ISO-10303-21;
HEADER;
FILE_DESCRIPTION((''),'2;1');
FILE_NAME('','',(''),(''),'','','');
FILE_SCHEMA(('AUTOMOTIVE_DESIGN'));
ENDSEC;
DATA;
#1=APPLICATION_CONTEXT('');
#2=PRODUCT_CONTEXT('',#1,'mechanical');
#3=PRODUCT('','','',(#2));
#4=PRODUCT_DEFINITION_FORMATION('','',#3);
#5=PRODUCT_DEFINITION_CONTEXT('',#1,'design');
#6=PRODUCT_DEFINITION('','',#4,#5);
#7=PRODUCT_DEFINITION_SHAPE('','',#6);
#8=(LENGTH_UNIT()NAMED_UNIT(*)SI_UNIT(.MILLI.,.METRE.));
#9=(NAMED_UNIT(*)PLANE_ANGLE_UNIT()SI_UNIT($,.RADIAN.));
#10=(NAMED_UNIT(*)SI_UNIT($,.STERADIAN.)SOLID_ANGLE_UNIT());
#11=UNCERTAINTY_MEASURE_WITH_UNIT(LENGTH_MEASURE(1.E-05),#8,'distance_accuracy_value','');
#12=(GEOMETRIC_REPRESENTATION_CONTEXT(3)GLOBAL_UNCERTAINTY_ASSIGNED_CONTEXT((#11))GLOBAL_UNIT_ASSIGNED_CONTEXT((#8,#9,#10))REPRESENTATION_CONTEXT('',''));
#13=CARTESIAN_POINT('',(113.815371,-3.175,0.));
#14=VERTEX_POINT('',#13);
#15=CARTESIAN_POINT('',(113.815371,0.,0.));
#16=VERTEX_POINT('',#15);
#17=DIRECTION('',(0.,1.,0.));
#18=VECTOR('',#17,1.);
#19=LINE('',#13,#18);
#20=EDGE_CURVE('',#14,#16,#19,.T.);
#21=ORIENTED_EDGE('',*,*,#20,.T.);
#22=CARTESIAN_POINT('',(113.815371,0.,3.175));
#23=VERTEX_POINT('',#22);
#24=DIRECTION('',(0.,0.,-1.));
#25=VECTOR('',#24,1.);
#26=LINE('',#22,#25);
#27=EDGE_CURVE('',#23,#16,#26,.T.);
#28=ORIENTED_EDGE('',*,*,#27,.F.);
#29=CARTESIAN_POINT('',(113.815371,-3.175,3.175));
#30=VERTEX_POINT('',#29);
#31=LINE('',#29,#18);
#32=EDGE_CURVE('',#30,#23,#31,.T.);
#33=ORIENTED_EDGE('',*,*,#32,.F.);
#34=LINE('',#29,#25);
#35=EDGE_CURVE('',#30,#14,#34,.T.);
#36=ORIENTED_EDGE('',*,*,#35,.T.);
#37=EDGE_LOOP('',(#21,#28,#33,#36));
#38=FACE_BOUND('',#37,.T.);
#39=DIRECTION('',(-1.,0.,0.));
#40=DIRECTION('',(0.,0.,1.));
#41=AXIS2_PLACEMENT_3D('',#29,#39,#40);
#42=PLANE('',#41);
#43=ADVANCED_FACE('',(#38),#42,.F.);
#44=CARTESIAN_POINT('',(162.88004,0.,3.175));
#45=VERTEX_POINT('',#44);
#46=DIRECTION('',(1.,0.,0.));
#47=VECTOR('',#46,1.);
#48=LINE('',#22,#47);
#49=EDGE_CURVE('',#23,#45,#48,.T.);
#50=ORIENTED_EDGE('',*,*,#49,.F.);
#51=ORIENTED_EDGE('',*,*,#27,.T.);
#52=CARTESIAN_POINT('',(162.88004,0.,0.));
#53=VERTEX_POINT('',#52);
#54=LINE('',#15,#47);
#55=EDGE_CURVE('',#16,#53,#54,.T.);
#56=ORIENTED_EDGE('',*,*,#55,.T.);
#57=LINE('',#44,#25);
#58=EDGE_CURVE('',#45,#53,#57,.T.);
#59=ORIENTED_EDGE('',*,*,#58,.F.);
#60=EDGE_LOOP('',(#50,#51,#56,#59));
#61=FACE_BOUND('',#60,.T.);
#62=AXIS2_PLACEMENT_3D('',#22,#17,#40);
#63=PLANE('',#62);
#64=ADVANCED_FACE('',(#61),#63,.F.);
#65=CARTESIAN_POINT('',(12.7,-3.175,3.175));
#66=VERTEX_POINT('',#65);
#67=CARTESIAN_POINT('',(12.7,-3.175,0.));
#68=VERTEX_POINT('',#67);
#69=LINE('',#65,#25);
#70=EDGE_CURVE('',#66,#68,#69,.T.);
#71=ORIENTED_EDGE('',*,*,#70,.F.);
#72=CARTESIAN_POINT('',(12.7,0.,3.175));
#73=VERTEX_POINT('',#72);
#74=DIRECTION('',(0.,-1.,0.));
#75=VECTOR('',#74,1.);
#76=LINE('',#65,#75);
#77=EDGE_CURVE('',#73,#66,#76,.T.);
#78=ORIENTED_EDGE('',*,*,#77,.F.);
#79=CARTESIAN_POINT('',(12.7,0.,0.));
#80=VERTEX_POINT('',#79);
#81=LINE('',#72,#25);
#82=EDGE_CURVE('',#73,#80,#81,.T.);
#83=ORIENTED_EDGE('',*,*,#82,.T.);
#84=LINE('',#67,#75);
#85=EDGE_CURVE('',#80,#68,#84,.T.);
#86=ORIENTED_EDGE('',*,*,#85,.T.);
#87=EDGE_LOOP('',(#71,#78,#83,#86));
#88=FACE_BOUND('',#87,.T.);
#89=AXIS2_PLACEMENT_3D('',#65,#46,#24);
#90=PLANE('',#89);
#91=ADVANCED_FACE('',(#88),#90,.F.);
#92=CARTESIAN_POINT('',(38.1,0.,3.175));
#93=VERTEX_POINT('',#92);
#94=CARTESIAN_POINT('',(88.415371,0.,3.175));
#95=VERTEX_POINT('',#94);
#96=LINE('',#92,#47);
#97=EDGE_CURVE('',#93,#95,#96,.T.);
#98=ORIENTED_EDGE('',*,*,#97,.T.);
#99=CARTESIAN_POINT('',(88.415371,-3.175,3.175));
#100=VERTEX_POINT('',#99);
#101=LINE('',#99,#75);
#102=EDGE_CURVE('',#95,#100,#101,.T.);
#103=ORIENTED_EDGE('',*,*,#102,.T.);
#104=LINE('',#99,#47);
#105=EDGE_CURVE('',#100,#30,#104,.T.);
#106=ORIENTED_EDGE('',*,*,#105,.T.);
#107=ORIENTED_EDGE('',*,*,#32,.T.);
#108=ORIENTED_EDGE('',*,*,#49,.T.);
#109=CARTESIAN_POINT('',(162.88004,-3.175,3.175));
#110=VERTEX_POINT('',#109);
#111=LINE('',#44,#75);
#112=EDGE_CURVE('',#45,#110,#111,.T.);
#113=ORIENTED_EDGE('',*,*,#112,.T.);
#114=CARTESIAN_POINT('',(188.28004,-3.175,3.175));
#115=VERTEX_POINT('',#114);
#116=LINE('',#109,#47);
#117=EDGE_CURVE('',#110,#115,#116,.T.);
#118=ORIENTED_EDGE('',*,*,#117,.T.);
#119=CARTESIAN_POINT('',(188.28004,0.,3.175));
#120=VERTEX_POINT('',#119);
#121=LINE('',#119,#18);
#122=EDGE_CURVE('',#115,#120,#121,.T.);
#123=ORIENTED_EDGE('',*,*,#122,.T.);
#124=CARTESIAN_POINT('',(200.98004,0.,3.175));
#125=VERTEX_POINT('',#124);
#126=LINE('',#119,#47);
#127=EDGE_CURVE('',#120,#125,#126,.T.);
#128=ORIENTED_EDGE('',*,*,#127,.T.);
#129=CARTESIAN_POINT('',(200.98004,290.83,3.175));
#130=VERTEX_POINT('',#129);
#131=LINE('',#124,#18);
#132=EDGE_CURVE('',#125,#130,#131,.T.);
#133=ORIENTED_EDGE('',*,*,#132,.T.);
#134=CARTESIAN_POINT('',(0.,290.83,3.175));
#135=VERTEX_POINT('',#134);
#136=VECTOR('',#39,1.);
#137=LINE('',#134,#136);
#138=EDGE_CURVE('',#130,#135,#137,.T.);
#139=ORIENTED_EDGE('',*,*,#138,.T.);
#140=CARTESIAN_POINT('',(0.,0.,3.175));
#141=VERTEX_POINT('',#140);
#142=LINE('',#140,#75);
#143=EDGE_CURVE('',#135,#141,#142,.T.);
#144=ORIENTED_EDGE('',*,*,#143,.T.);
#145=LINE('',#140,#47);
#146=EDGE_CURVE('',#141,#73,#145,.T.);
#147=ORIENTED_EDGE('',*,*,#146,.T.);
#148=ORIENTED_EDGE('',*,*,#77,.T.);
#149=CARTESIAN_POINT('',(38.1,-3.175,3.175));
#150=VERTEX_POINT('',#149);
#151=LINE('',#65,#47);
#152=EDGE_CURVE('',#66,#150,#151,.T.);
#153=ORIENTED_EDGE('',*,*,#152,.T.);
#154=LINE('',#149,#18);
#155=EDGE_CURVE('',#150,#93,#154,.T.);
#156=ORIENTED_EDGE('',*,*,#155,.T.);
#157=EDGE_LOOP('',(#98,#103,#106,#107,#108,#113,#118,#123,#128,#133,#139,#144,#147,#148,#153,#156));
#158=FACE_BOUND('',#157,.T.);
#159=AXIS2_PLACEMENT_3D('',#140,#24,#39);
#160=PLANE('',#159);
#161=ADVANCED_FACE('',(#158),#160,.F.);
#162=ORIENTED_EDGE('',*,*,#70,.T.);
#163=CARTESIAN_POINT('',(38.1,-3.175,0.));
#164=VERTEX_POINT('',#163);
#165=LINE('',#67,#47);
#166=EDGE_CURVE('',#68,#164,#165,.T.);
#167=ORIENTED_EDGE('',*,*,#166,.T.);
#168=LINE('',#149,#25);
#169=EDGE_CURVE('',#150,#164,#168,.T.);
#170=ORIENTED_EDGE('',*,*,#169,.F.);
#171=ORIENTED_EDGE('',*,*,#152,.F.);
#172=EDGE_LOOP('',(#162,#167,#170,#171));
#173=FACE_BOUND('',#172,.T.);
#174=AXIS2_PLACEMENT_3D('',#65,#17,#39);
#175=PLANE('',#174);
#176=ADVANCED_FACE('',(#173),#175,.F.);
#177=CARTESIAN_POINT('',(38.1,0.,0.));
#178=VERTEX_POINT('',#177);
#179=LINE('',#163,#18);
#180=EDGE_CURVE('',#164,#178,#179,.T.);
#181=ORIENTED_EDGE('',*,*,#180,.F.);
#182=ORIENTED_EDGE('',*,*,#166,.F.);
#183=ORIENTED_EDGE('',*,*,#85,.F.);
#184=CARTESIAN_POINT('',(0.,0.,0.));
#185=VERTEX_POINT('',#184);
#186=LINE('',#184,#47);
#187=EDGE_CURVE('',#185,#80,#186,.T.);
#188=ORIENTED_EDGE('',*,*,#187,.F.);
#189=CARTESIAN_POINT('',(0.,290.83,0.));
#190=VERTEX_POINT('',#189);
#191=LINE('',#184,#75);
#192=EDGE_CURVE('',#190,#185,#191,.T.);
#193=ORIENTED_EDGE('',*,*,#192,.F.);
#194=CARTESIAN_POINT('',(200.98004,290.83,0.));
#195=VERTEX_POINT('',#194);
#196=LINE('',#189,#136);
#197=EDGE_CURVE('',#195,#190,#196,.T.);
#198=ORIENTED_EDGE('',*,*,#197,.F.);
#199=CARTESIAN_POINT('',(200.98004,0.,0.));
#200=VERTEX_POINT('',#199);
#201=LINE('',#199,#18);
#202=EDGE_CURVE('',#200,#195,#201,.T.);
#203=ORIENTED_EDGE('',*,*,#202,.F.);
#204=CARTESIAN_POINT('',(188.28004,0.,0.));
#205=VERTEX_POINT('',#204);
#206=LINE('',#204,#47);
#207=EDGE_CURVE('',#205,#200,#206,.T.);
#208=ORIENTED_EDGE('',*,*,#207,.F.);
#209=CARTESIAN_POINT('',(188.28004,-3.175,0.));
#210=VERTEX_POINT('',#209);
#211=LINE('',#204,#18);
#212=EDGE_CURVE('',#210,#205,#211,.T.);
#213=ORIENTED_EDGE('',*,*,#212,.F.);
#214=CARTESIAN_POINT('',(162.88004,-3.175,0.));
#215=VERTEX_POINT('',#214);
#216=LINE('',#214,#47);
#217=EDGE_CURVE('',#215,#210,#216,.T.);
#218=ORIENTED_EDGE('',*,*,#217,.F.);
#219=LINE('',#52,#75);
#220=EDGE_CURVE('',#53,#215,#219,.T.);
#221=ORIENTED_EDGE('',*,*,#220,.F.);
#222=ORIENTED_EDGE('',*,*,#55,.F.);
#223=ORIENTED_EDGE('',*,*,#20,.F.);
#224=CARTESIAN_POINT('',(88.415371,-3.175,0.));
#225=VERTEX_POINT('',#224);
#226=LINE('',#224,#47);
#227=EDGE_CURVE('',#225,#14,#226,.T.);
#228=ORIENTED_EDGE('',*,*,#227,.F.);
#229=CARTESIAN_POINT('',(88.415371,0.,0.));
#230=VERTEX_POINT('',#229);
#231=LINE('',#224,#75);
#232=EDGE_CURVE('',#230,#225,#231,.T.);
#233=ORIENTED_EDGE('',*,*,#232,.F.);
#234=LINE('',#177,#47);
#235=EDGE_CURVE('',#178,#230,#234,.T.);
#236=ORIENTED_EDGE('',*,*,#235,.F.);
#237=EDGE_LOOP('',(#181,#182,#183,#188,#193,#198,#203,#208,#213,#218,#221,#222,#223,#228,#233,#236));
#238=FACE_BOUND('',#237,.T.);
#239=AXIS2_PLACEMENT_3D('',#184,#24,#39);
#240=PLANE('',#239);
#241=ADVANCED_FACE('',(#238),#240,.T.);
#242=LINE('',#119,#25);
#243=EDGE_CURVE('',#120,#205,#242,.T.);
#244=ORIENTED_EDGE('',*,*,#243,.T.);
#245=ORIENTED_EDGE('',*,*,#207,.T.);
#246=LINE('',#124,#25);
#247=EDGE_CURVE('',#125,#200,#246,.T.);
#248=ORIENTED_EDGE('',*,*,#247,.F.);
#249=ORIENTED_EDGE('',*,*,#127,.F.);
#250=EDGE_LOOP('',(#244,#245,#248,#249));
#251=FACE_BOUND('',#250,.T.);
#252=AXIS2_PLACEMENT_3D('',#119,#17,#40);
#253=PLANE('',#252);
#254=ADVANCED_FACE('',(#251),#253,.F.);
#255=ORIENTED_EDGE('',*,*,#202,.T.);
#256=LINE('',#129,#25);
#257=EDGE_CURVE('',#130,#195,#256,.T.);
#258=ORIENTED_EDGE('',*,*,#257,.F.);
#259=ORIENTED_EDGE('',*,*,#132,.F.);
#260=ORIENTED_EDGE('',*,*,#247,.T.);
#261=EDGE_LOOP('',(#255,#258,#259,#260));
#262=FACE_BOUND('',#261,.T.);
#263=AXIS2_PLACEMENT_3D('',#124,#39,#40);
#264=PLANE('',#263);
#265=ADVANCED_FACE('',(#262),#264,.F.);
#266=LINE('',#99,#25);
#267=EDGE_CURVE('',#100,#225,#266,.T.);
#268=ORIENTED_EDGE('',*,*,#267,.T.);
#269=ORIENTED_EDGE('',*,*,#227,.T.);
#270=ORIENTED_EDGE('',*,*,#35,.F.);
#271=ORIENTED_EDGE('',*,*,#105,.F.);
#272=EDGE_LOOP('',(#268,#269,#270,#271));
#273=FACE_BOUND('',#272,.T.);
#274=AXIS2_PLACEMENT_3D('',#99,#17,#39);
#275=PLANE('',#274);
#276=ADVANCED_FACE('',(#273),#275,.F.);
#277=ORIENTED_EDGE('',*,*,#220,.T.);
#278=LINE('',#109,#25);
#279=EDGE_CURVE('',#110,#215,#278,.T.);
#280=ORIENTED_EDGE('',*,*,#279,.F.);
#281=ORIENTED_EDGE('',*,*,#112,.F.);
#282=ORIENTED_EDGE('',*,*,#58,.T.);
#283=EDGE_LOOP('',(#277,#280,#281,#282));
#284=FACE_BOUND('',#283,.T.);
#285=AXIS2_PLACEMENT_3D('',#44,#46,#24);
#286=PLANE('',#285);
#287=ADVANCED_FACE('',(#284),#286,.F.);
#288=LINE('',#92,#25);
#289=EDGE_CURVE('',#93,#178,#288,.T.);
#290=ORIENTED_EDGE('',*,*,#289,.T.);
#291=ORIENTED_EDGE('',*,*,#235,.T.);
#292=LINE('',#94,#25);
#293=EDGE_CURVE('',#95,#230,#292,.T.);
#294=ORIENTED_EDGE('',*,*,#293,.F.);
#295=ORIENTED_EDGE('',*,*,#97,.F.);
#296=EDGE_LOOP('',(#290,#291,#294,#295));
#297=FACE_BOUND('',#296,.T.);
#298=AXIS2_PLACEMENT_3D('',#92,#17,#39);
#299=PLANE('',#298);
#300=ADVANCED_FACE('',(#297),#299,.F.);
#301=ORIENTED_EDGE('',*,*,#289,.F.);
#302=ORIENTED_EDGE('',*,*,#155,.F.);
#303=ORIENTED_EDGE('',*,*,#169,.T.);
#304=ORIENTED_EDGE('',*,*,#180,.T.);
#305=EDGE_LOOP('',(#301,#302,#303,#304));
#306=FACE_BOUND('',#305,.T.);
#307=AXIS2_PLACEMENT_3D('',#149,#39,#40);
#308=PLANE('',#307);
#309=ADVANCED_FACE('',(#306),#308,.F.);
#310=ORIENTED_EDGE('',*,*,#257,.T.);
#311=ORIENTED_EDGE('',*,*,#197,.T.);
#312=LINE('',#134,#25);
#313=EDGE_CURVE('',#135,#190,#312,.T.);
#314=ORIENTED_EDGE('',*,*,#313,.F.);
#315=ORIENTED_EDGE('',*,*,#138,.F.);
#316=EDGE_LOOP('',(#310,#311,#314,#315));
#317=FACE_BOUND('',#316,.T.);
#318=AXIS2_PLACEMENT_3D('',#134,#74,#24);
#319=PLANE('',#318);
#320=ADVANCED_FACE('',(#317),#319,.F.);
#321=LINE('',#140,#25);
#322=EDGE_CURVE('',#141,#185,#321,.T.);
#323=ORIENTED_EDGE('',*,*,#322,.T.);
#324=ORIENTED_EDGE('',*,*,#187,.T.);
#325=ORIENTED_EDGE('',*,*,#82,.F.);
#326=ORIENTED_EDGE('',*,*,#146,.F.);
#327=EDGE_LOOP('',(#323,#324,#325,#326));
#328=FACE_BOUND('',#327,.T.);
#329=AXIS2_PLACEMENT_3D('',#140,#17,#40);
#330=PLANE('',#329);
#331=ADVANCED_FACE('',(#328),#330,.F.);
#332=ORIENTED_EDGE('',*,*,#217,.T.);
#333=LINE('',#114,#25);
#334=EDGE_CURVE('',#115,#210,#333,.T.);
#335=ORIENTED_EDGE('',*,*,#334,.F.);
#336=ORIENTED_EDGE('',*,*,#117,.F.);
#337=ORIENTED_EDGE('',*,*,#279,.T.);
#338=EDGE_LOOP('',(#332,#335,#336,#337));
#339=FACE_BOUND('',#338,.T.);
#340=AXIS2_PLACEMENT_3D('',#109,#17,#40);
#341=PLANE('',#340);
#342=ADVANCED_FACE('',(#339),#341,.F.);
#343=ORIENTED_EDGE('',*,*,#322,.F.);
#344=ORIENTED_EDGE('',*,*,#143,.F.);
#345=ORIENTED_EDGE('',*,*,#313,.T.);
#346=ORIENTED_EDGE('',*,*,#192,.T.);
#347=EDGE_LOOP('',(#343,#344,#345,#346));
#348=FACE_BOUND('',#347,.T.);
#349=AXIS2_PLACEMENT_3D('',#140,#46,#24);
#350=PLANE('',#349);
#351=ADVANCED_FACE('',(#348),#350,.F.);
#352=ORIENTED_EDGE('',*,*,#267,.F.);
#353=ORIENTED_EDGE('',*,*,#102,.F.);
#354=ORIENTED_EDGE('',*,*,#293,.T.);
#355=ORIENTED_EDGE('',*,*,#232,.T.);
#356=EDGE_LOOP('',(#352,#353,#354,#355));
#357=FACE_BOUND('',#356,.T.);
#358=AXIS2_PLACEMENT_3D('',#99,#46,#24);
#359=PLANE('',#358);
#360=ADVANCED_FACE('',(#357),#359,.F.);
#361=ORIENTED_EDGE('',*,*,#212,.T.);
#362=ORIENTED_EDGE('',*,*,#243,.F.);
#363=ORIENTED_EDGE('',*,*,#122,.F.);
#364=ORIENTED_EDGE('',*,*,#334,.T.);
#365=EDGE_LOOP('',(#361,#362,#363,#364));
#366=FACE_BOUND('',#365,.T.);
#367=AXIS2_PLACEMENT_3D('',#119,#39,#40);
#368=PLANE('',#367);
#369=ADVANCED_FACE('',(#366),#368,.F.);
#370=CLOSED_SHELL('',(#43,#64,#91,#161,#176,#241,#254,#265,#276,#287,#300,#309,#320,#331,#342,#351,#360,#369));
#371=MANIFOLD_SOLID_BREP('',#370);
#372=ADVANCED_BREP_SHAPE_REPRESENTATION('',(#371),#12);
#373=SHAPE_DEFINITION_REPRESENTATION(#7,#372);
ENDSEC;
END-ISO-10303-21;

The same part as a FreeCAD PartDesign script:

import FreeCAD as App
import Part
import Sketcher
from FreeCAD import Vector
Q = App.Units.Quantity


def add_polygon(sketch, points):
    """Adds a closed chain of lines whose ends are joined by coincident constraints."""
    first, n = sketch.GeometryCount, len(points)
    for a, b in zip(points, points[1:] + points[:1]):
        sketch.addGeometry(Part.LineSegment(App.Vector(*a, 0), App.Vector(*b, 0)), False)
    for i in range(n):
        sketch.addConstraint(Sketcher.Constraint("Coincident", first + i, 2, first + (i + 1) % n, 1))

doc = App.newDocument("Part")
params = doc.addObject("Spreadsheet::Sheet", "Params")
for row, (alias, value) in enumerate([
    ("sketch1_width", "1 in"),
    ("sketch1_width2", "0.5 in"),
    ("sketch1_height", "11.45 in"),
    ("sketch1_height2", "0.125 in"),
    ("pad1_length", "0.125 in"),
], start=1):
    params.set(f"A{row}", alias)
    params.set(f"B{row}", "=" + value)
    params.setAlias(f"B{row}", alias)

body = doc.addObject("PartDesign::Body", "Body")

# Sketch on XY plane
sketch1 = body.newObject("Sketcher::SketchObject", "Sketch")
sketch1.AttachmentSupport = (doc.getObject("XY_Plane"), [""])
sketch1.MapMode = "FlatFace"
add_polygon(sketch1, [(0, 0), (12.7, 0), (12.7, -3.2), (38.1, -3.2), (38.1, 0), (88.4, 0), (88.4, -3.2), (113.8, -3.2), (113.8, 0), (162.9, 0), (162.9, -3.2), (188.3, -3.2), (188.3, 0), (201, 0), (201, 290.8), (0, 290.8)])  # lines 0-15
sketch1.addConstraint([
    Sketcher.Constraint("Horizontal", 0),
    Sketcher.Constraint("Vertical", 1),
    Sketcher.Constraint("Horizontal", 2),
    Sketcher.Constraint("Vertical", 3),
    Sketcher.Constraint("Horizontal", 4),
    Sketcher.Constraint("Vertical", 5),
    Sketcher.Constraint("Horizontal", 6),
    Sketcher.Constraint("Vertical", 7),
    Sketcher.Constraint("Horizontal", 8),
    Sketcher.Constraint("Vertical", 9),
    Sketcher.Constraint("Horizontal", 10),
    Sketcher.Constraint("Vertical", 11),
    Sketcher.Constraint("Horizontal", 12),
    Sketcher.Constraint("Vertical", 13),
    Sketcher.Constraint("Horizontal", 14),
    Sketcher.Constraint("Vertical", 15),
    Sketcher.Constraint("Coincident", 15, 2, -1, 1),
    Sketcher.Constraint("PointOnObject", 3, 2, -1),
    Sketcher.Constraint("PointOnObject", 7, 2, -1),
    Sketcher.Constraint("PointOnObject", 11, 2, -1),
    Sketcher.Constraint("Horizontal", 2, 2, 5, 2),
    Sketcher.Constraint("Horizontal", 6, 2, 9, 2),
    Sketcher.Constraint("Equal", 2, 6),
    Sketcher.Constraint("Equal", 6, 10),
    Sketcher.Constraint("Equal", 0, 12),
    Sketcher.Constraint("DistanceX", 2, 1, 2, 2, Q("1 in")),
    Sketcher.Constraint("DistanceX", 0, 1, 0, 2, Q("0.5 in")),
    Sketcher.Constraint("DistanceY", 13, 1, 13, 2, Q("11.45 in")),
    Sketcher.Constraint("DistanceY", 1, 2, 1, 1, Q("0.125 in")),
    Sketcher.Constraint("DistanceX", 14, 2, 14, 1, Q("7.9126 in")),
    Sketcher.Constraint("DistanceX", 4, 1, 4, 2, 50.315371),
])
sketch1.setExpression("Constraints[41]", "Params.sketch1_width")
sketch1.setExpression("Constraints[42]", "Params.sketch1_width2")
sketch1.setExpression("Constraints[43]", "Params.sketch1_height")
sketch1.setExpression("Constraints[44]", "Params.sketch1_height2")
pad1 = body.newObject("PartDesign::Pad", "Pad")
pad1.Profile = sketch1
pad1.setExpression("Length", "Params.pad1_length")

doc.recompute()
